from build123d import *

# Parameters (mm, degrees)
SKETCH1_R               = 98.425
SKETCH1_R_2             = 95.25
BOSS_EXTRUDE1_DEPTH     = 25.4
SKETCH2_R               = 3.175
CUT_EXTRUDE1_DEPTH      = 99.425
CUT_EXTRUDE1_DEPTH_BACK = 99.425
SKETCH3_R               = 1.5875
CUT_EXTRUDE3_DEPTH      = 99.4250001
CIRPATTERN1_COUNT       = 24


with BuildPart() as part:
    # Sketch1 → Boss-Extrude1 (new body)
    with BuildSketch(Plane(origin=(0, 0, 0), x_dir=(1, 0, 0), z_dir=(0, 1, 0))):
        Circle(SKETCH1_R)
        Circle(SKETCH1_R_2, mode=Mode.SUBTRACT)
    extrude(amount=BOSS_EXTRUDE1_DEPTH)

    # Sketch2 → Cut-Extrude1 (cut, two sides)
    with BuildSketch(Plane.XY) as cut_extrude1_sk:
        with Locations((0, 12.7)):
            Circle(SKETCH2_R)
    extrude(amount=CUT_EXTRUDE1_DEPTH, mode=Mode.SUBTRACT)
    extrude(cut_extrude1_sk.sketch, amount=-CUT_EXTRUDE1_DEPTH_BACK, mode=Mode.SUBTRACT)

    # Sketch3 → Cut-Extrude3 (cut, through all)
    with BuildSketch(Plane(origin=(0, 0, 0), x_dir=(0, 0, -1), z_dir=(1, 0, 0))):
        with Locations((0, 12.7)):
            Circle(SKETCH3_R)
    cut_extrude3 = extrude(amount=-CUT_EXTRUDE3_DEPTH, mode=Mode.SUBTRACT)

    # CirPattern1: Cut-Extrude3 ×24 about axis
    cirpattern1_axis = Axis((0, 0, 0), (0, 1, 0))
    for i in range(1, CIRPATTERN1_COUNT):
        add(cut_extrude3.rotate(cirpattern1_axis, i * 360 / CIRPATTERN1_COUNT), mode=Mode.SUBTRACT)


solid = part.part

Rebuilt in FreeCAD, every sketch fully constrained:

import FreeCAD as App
import Part
import Sketcher
from FreeCAD import Vector
Q = App.Units.Quantity

doc = App.newDocument("Part")
params = doc.addObject("Spreadsheet::Sheet", "Params")
for row, (alias, value) in enumerate([
    ("sketch1_diameter", "7.5 in"),
    ("sketch1_diameter2", "7.75 in"),
    ("pad1_length", "1 in"),
    ("sketch2_diameter", "0.25 in"),
    ("sketch3_diameter", "0.125 in"),
], start=1):
    params.set(f"A{row}", alias)
    params.set(f"B{row}", "=" + value)
    params.setAlias(f"B{row}", alias)

body = doc.addObject("PartDesign::Body", "Body")

# Sketch on XZ plane
sketch1 = doc.addObject("Sketcher::SketchObject", "Sketch")
body.addObject(sketch1)
sketch1.AttachmentSupport = (doc.XZ_Plane, [""])
sketch1.MapMode = "FlatFace"
sketch1.addGeometry([
    Part.Circle(Vector(0, 0, 0), Vector(0, 0, 1), 98),
    Part.Circle(Vector(0, 0, 0), Vector(0, 0, 1), 95),
], False)
sketch1.addConstraint([
    Sketcher.Constraint("Coincident", 0, 3, -1, 1),
    Sketcher.Constraint("Coincident", 1, 3, -1, 1),
    Sketcher.Constraint("Diameter", 1, Q("7.5 in")),
    Sketcher.Constraint("Diameter", 0, Q("7.75 in")),
])
sketch1.setExpression("Constraints[2]", "Params.sketch1_diameter")
sketch1.setExpression("Constraints[3]", "Params.sketch1_diameter2")
pad1 = doc.addObject("PartDesign::Pad", "Pad")
body.addObject(pad1)
pad1.Profile = sketch1
pad1.setExpression("Length", "Params.pad1_length")
pad1.Reversed = True

# Sketch on XY plane
sketch2 = doc.addObject("Sketcher::SketchObject", "Sketch001")
body.addObject(sketch2)
sketch2.AttachmentSupport = (doc.XY_Plane, [""])
sketch2.MapMode = "FlatFace"
sketch2.addGeometry(Part.Circle(Vector(0, 12.7, 0), Vector(0, 0, 1), 3.2), False)
sketch2.addConstraint([
    Sketcher.Constraint("PointOnObject", 0, 3, -2),
    Sketcher.Constraint("Diameter", 0, Q("0.25 in")),
    Sketcher.Constraint("DistanceY", -1, 1, 0, 3, Q("0.5 in")),
])
sketch2.setExpression("Constraints[1]", "Params.sketch2_diameter")
pocket1 = doc.addObject("PartDesign::Pocket", "Pocket")
body.addObject(pocket1)
pocket1.Profile = sketch2
pocket1.Type = "ThroughAll"
pocket1.Midplane = True

# Sketch on YZ plane
sketch3 = doc.addObject("Sketcher::SketchObject", "Sketch002")
body.addObject(sketch3)
sketch3.AttachmentSupport = (doc.YZ_Plane, [""])
sketch3.MapMode = "FlatFace"
sketch3.addGeometry(Part.Circle(Vector(12.7, 0, 0), Vector(0, 0, 1), 1.6), False)
sketch3.addConstraint([
    Sketcher.Constraint("PointOnObject", 0, 3, -1),
    Sketcher.Constraint("Diameter", 0, Q("0.125 in")),
    Sketcher.Constraint("DistanceX", -1, 1, 0, 3, Q("0.5 in")),
])
sketch3.setExpression("Constraints[1]", "Params.sketch3_diameter")
pocket2 = doc.addObject("PartDesign::Pocket", "Pocket001")
body.addObject(pocket2)
pocket2.Profile = sketch3
pocket2.Type = "ThroughAll"
doc.recompute()

polarpattern = doc.addObject("PartDesign::PolarPattern", "PolarPattern")
body.addObject(polarpattern)
polarpattern.Originals = [pocket2]
polarpattern.Axis = (doc.Y_Axis, [""])
polarpattern.Angle = 360
polarpattern.Occurrences = 24
body.Tip = polarpattern

doc.recompute()
